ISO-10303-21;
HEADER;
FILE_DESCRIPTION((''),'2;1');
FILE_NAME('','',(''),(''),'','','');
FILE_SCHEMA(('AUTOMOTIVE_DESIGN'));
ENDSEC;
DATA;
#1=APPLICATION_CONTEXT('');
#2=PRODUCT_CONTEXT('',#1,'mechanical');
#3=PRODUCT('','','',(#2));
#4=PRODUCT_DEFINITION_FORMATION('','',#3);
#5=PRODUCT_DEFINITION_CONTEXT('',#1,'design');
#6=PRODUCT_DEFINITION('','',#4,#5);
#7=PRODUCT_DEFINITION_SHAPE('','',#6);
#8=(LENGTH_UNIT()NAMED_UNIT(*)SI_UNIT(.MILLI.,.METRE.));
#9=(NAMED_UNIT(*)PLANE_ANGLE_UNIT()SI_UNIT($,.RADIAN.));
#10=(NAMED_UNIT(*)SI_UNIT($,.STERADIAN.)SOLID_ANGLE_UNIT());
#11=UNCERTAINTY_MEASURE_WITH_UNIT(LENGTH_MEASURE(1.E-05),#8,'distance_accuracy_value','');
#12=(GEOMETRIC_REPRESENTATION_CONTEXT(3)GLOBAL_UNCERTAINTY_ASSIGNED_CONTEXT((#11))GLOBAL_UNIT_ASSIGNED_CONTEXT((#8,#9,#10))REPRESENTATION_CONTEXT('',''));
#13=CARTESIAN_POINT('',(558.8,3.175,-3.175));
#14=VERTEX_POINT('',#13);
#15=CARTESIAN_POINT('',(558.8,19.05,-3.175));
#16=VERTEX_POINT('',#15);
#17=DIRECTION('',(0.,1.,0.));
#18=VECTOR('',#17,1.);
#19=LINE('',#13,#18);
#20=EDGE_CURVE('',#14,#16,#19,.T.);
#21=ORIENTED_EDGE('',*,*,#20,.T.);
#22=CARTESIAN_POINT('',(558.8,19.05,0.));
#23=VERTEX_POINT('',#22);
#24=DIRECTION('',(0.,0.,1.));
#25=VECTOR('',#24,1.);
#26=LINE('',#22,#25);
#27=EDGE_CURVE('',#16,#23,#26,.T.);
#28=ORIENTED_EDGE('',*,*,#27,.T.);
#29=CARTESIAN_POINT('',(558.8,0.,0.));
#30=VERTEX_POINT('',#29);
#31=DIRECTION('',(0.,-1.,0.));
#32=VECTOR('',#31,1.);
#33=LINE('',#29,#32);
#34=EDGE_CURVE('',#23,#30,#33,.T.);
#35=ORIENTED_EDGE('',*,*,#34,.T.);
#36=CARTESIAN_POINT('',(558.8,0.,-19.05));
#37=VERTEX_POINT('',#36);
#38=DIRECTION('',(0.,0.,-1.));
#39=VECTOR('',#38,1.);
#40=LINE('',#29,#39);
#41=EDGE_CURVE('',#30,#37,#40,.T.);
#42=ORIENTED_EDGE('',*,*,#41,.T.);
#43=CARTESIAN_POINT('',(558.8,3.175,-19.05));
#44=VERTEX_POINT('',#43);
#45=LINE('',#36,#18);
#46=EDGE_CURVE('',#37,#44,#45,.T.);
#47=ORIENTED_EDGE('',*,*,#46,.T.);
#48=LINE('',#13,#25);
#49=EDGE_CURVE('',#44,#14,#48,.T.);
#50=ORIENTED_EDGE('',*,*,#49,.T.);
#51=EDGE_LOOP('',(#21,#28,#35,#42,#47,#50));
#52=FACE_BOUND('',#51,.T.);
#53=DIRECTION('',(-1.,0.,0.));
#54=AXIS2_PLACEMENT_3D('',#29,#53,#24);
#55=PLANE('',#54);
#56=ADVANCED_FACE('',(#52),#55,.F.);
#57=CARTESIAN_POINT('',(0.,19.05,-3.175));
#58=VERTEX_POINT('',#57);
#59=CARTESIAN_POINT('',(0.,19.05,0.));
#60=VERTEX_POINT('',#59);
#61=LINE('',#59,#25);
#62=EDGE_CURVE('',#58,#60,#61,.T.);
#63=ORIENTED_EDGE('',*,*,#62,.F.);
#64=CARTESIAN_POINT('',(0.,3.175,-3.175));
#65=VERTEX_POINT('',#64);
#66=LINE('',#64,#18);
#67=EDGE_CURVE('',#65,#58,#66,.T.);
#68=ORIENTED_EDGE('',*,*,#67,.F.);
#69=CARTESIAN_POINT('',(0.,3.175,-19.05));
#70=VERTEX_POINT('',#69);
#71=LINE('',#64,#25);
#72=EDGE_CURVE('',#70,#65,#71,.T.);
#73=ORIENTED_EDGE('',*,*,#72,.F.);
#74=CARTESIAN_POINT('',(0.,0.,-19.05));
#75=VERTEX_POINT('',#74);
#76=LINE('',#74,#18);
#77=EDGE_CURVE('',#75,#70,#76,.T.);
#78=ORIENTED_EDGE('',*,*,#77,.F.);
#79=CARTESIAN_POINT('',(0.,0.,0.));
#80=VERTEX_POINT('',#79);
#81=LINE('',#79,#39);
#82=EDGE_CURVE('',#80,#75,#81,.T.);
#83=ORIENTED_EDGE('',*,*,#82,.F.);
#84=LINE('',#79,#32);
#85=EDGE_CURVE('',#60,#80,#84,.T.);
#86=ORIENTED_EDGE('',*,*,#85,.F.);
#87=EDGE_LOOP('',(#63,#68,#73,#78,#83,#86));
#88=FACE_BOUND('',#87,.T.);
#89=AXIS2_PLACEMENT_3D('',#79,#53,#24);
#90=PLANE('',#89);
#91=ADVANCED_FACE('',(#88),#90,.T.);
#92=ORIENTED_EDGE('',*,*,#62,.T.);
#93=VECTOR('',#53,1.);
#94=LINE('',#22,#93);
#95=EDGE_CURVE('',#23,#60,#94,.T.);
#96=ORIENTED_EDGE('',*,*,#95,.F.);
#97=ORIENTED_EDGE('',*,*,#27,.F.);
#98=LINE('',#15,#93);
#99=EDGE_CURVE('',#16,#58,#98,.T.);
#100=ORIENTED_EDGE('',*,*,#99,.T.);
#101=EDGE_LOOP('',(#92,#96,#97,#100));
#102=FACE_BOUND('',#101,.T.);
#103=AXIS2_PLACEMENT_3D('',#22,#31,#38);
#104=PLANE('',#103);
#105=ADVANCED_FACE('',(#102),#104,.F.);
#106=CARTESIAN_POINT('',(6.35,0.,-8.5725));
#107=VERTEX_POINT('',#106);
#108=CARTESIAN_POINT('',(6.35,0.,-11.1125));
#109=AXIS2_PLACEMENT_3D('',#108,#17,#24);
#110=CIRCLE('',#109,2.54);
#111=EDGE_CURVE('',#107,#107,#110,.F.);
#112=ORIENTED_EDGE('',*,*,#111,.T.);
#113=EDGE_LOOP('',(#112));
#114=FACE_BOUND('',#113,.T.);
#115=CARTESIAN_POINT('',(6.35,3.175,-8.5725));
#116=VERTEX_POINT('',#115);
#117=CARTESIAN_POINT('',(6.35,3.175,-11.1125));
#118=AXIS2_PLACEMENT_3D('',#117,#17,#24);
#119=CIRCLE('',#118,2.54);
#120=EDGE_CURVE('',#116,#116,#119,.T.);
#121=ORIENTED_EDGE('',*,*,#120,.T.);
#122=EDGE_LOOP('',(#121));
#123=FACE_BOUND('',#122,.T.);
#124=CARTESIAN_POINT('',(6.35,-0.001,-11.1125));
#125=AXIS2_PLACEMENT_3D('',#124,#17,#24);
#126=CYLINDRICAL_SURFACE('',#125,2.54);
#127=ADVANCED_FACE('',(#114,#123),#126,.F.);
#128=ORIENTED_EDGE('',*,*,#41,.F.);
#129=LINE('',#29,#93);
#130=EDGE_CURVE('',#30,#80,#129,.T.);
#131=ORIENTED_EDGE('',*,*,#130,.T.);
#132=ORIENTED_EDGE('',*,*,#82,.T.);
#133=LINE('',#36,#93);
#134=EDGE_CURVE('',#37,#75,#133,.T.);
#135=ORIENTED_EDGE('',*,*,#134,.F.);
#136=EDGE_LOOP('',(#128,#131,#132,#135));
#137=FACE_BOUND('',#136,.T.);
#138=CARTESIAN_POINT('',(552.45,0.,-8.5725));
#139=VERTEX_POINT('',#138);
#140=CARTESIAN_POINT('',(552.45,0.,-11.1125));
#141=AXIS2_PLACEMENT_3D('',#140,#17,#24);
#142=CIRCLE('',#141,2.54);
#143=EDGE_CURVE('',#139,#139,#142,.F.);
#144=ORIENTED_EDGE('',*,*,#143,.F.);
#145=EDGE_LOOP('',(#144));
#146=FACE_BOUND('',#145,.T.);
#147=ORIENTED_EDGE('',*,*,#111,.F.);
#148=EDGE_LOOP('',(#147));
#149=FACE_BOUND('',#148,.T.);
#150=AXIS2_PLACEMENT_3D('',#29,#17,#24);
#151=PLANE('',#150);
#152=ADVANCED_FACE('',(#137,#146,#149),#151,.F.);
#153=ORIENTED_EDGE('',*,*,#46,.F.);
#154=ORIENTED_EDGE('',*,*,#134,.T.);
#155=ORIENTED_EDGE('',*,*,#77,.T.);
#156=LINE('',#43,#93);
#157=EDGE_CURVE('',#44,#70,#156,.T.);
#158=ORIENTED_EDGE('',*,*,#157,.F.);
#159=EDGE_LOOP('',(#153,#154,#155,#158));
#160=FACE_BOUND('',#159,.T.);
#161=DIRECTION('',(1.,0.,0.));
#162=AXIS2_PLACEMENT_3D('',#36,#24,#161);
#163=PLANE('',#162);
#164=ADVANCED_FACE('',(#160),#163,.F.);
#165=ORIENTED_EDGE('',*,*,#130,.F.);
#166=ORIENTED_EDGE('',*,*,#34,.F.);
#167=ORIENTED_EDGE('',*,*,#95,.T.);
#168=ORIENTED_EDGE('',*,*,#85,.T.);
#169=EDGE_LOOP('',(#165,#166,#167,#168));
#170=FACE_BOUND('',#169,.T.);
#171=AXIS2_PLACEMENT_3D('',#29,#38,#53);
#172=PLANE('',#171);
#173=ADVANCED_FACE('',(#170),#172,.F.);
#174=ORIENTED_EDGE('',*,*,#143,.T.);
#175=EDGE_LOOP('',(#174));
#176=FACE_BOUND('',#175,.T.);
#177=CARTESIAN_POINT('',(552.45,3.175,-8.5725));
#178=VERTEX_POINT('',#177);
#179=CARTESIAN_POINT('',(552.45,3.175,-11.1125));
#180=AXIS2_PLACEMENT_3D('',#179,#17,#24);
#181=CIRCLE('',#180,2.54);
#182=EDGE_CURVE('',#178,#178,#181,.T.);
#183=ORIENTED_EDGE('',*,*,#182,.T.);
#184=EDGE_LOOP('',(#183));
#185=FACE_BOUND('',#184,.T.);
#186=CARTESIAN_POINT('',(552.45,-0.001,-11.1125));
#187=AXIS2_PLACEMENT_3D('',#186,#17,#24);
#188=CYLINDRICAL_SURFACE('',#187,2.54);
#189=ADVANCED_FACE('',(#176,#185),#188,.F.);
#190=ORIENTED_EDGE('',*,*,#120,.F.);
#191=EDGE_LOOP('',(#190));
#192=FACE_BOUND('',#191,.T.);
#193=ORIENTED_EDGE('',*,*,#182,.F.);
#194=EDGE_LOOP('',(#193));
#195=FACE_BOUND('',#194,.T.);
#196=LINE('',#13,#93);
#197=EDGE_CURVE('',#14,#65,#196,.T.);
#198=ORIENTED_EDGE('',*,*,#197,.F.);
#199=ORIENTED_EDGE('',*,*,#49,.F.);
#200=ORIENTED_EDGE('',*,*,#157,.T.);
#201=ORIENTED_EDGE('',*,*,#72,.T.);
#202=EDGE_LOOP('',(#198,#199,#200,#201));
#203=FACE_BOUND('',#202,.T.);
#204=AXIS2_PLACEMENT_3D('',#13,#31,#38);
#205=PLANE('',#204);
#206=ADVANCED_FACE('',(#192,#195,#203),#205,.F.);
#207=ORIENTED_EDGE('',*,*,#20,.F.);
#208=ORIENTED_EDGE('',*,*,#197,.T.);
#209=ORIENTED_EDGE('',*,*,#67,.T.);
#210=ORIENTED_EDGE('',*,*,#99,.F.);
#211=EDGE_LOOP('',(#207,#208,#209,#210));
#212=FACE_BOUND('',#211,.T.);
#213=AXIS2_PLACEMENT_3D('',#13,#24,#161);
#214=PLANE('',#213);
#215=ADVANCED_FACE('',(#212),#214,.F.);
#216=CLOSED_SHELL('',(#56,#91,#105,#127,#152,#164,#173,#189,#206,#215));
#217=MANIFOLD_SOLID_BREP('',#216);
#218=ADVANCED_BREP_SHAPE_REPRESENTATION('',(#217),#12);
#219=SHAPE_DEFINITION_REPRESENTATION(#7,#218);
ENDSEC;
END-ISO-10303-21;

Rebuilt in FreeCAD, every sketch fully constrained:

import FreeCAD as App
import Part
import Sketcher

V = App.Vector
Q = App.Units.Quantity

doc = App.newDocument("Part")
params = doc.addObject("Spreadsheet::Sheet", "Params")
for row, (alias, value) in enumerate([
    ("sketch1_width", "0.75 in"),
    ("sketch1_width2", "0.625 in"),
    ("pad1_length", "22 in"),
    ("sketch2_diameter", "0.2 in"),
    ("sketch3_diameter", "0.2 in"),
], start=1):
    params.set(f"A{row}", alias)
    params.set(f"B{row}", "=" + value)
    params.setAlias(f"B{row}", alias)

body = doc.addObject("PartDesign::Body", "Body")

# Sketch on YZ plane
sketch1 = body.newObject("Sketcher::SketchObject", "Sketch")
sketch1.AttachmentSupport = (doc.getObject("YZ_Plane"), [""])
sketch1.MapMode = "FlatFace"
sketch1.addGeometry([
    Part.LineSegment(V(3.2, -3.2, 0), V(19.1, -3.2, 0)),  # 0
    Part.LineSegment(V(19.1, -3.2, 0), V(19.1, 0, 0)),  # 1
    Part.LineSegment(V(19.1, 0, 0), V(0, 0, 0)),  # 2
    Part.LineSegment(V(0, 0, 0), V(0, -19.1, 0)),  # 3
    Part.LineSegment(V(0, -19.1, 0), V(3.2, -19.1, 0)),  # 4
    Part.LineSegment(V(3.2, -19.1, 0), V(3.2, -3.2, 0)),  # 5
], False)
sketch1.addConstraint([
    Sketcher.Constraint("Coincident", 0, 2, 1, 1),
    Sketcher.Constraint("Coincident", 1, 2, 2, 1),
    Sketcher.Constraint("Coincident", 2, 2, 3, 1),
    Sketcher.Constraint("Coincident", 3, 2, 4, 1),
    Sketcher.Constraint("Coincident", 4, 2, 5, 1),
    Sketcher.Constraint("Coincident", 5, 2, 0, 1),
    Sketcher.Constraint("Horizontal", 0),
    Sketcher.Constraint("Vertical", 1),
    Sketcher.Constraint("Horizontal", 2),
    Sketcher.Constraint("Vertical", 3),
    Sketcher.Constraint("Horizontal", 4),
    Sketcher.Constraint("Vertical", 5),
    Sketcher.Constraint("Coincident", 2, 2, -1, 1),
    Sketcher.Constraint("Equal", 4, 1),
    Sketcher.Constraint("Equal", 2, 3),
    Sketcher.Constraint("DistanceX", 2, 2, 2, 1, Q("0.75 in")),
    Sketcher.Constraint("DistanceX", 0, 1, 0, 2, Q("0.625 in")),
])
sketch1.setExpression("Constraints[15]", "Params.sketch1_width")
sketch1.setExpression("Constraints[16]", "Params.sketch1_width2")
pad1 = body.newObject("PartDesign::Pad", "Pad")
pad1.Profile = sketch1
pad1.setExpression("Length", "Params.pad1_length")

# Sketch on XZ plane
sketch2 = body.newObject("Sketcher::SketchObject", "Sketch001")
sketch2.AttachmentSupport = (doc.getObject("XZ_Plane"), [""])
sketch2.MapMode = "FlatFace"
sketch2.AttachmentOffset = App.Placement(V(0, 0, -0.125 * 25.4), App.Rotation())
sketch2.addGeometry(Part.Circle(V(552.5, -11.1, 0), V(0, 0, 1), 2.5), False)
sketch2.addConstraint([
    Sketcher.Constraint("Diameter", 0, Q("0.2 in")),
    Sketcher.Constraint("DistanceX", -1, 1, 0, 3, Q("21.75 in")),
    Sketcher.Constraint("DistanceY", 0, 3, -1, 1, Q("0.4375 in")),
])
sketch2.setExpression("Constraints[0]", "Params.sketch2_diameter")
pocket1 = body.newObject("PartDesign::Pocket", "Pocket")
pocket1.Profile = sketch2
pocket1.Type = "UpToFirst"
pocket1.Reversed = True

# Sketch on XZ plane
sketch3 = body.newObject("Sketcher::SketchObject", "Sketch002")
sketch3.AttachmentSupport = (doc.getObject("XZ_Plane"), [""])
sketch3.MapMode = "FlatFace"
sketch3.AttachmentOffset = App.Placement(V(0, 0, -0.125 * 25.4), App.Rotation())
sketch3.addGeometry(Part.Circle(V(6.3, -11.1, 0), V(0, 0, 1), 2.5), False)
sketch3.addConstraint([
    Sketcher.Constraint("Diameter", 0, Q("0.2 in")),
    Sketcher.Constraint("DistanceX", -1, 1, 0, 3, Q("0.25 in")),
    Sketcher.Constraint("DistanceY", 0, 3, -1, 1, Q("0.4375 in")),
])
sketch3.setExpression("Constraints[0]", "Params.sketch3_diameter")
pocket2 = body.newObject("PartDesign::Pocket", "Pocket001")
pocket2.Profile = sketch3
pocket2.Type = "UpToFirst"
pocket2.Reversed = True

doc.recompute()
